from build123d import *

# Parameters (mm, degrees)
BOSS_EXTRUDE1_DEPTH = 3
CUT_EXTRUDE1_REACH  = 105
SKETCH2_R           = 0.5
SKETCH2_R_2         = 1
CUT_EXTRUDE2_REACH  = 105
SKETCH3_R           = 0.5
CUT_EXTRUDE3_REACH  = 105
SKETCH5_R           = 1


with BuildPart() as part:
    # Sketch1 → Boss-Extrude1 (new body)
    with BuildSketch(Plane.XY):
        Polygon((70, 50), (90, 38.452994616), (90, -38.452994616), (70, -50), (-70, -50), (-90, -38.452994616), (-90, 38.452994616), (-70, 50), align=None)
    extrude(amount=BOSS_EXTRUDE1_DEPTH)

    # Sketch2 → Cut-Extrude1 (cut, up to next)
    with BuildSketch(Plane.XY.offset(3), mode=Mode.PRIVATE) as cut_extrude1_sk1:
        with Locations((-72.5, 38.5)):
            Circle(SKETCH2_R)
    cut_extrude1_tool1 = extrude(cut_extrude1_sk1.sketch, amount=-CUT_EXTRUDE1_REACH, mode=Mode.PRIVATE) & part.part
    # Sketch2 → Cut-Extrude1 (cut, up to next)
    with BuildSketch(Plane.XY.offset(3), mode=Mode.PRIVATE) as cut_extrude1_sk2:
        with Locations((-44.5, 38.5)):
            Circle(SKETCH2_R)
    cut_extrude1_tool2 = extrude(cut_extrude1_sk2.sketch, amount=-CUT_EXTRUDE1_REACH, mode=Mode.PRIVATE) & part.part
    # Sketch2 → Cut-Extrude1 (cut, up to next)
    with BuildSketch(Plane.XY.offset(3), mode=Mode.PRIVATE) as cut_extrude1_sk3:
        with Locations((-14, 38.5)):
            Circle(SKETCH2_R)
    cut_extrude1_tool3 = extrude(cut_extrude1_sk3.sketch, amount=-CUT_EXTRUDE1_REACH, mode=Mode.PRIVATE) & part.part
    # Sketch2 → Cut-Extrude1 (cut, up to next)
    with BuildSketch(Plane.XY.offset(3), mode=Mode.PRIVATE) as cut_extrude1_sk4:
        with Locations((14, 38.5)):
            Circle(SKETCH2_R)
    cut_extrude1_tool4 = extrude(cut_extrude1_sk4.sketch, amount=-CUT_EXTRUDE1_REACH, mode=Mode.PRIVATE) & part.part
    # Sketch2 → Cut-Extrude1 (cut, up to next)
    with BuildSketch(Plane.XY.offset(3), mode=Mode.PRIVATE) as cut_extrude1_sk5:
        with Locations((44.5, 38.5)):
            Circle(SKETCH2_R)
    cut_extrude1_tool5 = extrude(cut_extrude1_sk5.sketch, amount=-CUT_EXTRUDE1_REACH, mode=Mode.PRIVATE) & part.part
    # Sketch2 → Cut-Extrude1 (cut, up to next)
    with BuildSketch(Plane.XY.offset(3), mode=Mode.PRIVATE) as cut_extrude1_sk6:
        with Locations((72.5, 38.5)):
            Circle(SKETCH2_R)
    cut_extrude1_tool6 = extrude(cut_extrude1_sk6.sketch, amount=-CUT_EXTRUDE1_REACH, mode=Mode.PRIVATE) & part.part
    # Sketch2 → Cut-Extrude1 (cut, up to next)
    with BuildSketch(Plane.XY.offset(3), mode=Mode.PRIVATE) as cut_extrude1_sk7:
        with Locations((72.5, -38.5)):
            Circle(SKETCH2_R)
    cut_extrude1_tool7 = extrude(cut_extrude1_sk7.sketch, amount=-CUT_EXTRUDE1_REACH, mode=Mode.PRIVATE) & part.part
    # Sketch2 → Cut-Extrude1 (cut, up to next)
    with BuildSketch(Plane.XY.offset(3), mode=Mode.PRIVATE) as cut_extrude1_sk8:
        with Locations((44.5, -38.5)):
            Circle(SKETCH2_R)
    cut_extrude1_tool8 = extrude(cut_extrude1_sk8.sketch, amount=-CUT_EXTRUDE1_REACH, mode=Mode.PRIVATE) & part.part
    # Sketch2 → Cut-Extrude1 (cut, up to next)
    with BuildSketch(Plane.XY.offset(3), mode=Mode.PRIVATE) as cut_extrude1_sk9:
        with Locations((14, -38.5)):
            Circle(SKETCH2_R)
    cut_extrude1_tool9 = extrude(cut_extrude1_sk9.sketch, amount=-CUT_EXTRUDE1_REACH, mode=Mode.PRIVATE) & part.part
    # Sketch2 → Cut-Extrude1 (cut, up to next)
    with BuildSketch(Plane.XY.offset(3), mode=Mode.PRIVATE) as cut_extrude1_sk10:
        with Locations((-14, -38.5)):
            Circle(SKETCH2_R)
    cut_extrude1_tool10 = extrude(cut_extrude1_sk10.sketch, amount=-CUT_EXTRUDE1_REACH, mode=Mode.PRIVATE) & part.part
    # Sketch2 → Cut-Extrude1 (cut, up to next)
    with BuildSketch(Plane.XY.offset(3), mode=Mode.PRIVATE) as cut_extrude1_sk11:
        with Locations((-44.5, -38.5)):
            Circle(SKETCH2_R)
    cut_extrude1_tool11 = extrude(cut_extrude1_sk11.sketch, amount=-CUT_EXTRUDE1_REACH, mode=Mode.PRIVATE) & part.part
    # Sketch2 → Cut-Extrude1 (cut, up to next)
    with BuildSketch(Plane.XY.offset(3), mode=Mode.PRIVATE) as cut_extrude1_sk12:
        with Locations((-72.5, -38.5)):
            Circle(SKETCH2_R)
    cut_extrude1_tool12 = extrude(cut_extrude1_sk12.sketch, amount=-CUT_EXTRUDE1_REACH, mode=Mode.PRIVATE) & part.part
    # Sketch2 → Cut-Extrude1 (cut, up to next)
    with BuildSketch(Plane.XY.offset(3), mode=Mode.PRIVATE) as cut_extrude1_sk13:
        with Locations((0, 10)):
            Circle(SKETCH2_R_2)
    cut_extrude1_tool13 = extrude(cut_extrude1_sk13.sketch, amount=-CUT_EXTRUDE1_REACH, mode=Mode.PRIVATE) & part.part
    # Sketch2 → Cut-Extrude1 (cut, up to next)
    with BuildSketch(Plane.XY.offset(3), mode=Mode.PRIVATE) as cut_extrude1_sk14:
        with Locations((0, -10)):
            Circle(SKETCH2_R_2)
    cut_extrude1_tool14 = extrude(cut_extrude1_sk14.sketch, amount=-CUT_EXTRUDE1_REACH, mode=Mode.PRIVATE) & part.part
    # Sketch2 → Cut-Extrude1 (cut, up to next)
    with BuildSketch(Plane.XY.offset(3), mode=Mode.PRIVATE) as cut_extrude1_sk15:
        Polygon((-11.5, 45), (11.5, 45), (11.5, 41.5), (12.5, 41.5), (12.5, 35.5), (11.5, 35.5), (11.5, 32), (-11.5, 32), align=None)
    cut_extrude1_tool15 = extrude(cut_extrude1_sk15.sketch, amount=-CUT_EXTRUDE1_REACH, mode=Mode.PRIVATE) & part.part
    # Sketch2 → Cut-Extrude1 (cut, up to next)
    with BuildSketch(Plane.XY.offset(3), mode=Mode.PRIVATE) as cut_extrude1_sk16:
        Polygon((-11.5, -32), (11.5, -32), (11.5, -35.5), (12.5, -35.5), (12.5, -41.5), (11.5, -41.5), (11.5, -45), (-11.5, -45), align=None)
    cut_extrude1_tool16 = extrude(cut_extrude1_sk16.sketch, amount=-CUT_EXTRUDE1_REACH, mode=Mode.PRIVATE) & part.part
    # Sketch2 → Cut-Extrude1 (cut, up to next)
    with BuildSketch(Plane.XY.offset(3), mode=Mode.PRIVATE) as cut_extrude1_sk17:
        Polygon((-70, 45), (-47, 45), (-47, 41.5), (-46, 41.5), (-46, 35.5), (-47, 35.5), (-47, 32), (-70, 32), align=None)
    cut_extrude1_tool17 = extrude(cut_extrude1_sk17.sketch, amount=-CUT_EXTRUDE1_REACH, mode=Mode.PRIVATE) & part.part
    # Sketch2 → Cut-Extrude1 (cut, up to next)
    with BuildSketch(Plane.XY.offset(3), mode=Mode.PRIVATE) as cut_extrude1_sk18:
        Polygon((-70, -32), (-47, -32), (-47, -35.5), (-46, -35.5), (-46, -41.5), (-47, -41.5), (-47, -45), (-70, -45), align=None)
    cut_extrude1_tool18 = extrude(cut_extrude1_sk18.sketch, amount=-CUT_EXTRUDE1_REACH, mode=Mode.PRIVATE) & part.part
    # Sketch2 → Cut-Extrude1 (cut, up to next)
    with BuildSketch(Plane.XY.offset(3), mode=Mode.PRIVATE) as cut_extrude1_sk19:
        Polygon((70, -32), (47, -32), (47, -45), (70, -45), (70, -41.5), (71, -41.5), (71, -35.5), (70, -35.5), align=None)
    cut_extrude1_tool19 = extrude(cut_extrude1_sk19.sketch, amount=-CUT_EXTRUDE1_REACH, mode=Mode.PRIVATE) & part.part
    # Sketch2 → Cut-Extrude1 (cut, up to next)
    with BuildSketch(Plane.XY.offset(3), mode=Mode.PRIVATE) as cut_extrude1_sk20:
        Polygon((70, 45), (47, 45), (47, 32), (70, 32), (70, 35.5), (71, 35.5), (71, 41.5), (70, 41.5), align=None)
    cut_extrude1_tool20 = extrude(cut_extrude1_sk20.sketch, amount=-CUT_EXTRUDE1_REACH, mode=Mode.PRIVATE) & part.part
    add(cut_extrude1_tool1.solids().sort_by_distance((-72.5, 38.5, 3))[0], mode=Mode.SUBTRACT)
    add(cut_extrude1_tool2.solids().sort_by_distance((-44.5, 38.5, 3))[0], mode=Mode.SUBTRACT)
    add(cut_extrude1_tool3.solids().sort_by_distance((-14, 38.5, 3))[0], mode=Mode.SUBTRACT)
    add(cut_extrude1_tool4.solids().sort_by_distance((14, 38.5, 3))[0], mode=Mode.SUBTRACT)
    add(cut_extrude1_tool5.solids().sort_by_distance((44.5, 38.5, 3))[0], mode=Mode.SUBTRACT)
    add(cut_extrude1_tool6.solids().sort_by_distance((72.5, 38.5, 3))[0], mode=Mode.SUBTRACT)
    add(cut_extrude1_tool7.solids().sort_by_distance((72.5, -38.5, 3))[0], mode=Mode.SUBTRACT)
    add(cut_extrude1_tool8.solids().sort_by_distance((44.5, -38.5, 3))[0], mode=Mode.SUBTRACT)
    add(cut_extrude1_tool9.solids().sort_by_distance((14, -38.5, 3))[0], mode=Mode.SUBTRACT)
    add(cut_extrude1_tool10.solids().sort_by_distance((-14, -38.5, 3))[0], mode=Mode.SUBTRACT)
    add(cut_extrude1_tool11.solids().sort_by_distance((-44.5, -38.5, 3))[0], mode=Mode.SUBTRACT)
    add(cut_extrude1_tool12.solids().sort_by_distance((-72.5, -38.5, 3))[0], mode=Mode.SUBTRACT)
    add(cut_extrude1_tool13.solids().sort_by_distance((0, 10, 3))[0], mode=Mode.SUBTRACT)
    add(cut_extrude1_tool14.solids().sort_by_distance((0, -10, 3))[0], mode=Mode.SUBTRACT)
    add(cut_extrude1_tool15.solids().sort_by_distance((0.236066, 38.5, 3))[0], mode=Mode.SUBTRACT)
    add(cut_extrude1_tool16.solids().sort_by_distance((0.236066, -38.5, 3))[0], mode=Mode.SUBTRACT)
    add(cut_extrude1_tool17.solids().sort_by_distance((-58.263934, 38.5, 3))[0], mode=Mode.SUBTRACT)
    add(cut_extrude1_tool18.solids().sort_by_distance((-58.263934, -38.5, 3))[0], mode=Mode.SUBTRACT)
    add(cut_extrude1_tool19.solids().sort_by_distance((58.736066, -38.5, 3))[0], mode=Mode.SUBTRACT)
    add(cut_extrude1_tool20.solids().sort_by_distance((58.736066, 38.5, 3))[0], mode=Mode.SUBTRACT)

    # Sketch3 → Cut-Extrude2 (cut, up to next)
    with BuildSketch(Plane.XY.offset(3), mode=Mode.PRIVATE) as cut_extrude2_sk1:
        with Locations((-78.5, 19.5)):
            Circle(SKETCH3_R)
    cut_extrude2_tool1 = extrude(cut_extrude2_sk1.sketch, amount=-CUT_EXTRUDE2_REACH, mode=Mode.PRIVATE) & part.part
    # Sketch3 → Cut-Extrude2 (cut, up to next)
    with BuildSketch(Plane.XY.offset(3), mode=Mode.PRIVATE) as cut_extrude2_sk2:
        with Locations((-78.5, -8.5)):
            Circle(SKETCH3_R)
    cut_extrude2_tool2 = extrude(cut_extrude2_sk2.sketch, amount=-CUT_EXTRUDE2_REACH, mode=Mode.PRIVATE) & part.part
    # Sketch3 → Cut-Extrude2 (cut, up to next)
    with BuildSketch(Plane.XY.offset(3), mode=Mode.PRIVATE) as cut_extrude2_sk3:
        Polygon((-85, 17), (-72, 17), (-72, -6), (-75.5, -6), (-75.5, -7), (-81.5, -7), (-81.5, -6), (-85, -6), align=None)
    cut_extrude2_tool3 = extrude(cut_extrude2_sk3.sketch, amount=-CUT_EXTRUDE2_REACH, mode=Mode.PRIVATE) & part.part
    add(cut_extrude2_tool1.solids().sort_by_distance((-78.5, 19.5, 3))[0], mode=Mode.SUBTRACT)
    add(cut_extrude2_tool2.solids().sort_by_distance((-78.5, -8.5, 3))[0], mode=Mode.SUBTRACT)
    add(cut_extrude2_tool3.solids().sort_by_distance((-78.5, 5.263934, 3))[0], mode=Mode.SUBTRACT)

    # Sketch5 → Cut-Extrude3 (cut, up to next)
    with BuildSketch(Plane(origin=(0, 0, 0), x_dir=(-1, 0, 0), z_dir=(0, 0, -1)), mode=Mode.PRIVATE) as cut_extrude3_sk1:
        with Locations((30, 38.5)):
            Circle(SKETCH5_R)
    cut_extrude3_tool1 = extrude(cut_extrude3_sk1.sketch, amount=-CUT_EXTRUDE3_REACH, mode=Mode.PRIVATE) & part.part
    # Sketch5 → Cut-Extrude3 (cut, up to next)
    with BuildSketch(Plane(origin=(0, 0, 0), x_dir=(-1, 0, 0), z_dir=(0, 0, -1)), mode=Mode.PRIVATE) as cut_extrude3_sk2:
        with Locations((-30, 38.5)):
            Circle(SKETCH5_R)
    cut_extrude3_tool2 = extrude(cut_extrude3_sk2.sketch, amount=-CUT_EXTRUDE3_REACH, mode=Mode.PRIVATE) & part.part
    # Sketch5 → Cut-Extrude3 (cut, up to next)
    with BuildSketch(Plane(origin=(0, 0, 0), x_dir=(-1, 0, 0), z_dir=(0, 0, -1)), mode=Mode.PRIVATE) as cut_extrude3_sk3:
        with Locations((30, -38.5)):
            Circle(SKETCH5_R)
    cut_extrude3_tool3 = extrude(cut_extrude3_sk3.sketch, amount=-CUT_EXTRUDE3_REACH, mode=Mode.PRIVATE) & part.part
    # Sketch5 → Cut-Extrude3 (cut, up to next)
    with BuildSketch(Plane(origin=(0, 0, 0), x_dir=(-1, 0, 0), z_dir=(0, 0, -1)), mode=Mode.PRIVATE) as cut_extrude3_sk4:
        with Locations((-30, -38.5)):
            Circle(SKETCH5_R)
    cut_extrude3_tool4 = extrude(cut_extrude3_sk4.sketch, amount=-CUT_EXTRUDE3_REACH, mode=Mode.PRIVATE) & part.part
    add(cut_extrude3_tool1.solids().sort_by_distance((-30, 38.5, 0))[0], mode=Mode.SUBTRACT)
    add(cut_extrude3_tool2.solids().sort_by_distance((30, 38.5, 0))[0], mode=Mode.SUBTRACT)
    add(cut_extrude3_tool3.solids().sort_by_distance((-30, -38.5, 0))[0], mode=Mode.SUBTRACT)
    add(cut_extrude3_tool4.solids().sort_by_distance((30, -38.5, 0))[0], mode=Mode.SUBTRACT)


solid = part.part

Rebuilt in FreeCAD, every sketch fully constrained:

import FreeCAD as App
import Part
import Sketcher

V = App.Vector
Q = App.Units.Quantity

doc = App.newDocument("Part")
params = doc.addObject("Spreadsheet::Sheet", "Params")
for row, (alias, value) in enumerate([
    ("sketch1_width", "140 mm"),
    ("pad1_length", "3 mm"),
    ("sketch2_diameter", "1 mm"),
    ("sketch3_diameter", "1 mm"),
    ("sketch4_diameter", "1 mm"),
    ("sketch5_diameter", "1 mm"),
    ("sketch6_diameter", "1 mm"),
    ("sketch7_diameter", "1 mm"),
    ("sketch8_diameter", "1 mm"),
    ("sketch9_diameter", "1 mm"),
    ("sketch10_diameter", "1 mm"),
    ("sketch11_diameter", "1 mm"),
    ("sketch12_diameter", "1 mm"),
    ("sketch13_diameter", "1 mm"),
    ("sketch14_diameter", "2 mm"),
    ("sketch15_diameter", "2 mm"),
    ("sketch16_width", "23 mm"),
    ("sketch16_width2", "1 mm"),
    ("sketch16_height", "13 mm"),
    ("sketch16_height2", "6 mm"),
    ("sketch17_width", "23 mm"),
    ("sketch17_width2", "1 mm"),
    ("sketch17_height", "13 mm"),
    ("sketch17_height2", "6 mm"),
    ("sketch18_width", "23 mm"),
    ("sketch18_width2", "1 mm"),
    ("sketch18_height", "13 mm"),
    ("sketch18_height2", "6 mm"),
    ("sketch19_width", "23 mm"),
    ("sketch19_width2", "1 mm"),
    ("sketch19_height", "13 mm"),
    ("sketch19_height2", "6 mm"),
    ("sketch20_width", "23 mm"),
    ("sketch20_width2", "1 mm"),
    ("sketch20_height", "13 mm"),
    ("sketch20_height2", "6 mm"),
    ("sketch21_width", "23 mm"),
    ("sketch21_width2", "1 mm"),
    ("sketch21_height", "13 mm"),
    ("sketch21_height2", "6 mm"),
    ("sketch22_diameter", "1 mm"),
    ("sketch23_diameter", "1 mm"),
    ("sketch24_width", "13 mm"),
    ("sketch24_width2", "6 mm"),
    ("sketch24_height", "23 mm"),
    ("sketch24_height2", "1 mm"),
    ("sketch25_diameter", "2 mm"),
    ("sketch26_diameter", "2 mm"),
    ("sketch27_diameter", "2 mm"),
    ("sketch28_diameter", "2 mm"),
], start=1):
    params.set(f"A{row}", alias)
    params.set(f"B{row}", "=" + value)
    params.setAlias(f"B{row}", alias)

body = doc.addObject("PartDesign::Body", "Body")

# Sketch on XY plane
sketch1 = body.newObject("Sketcher::SketchObject", "Sketch")
sketch1.AttachmentSupport = (doc.getObject("XY_Plane"), [""])
sketch1.MapMode = "FlatFace"
sketch1.addGeometry([
    Part.LineSegment(V(90, 38, 0), V(70, 50, 0)),  # 0
    Part.LineSegment(V(70, 50, 0), V(-70, 50, 0)),  # 1
    Part.LineSegment(V(-70, 50, 0), V(-90, 38, 0)),  # 2
    Part.LineSegment(V(-90, 38, 0), V(-90, -38, 0)),  # 3
    Part.LineSegment(V(-90, -38, 0), V(-70, -50, 0)),  # 4
    Part.LineSegment(V(-70, -50, 0), V(70, -50, 0)),  # 5
    Part.LineSegment(V(70, -50, 0), V(90, -38, 0)),  # 6
    Part.LineSegment(V(90, -38, 0), V(90, 38, 0)),  # 7
], False)
sketch1.addConstraint([
    Sketcher.Constraint("Coincident", 0, 2, 1, 1),
    Sketcher.Constraint("Coincident", 1, 2, 2, 1),
    Sketcher.Constraint("Coincident", 2, 2, 3, 1),
    Sketcher.Constraint("Coincident", 3, 2, 4, 1),
    Sketcher.Constraint("Coincident", 4, 2, 5, 1),
    Sketcher.Constraint("Coincident", 5, 2, 6, 1),
    Sketcher.Constraint("Coincident", 6, 2, 7, 1),
    Sketcher.Constraint("Coincident", 7, 2, 0, 1),
    Sketcher.Constraint("Horizontal", 1),
    Sketcher.Constraint("Vertical", 3),
    Sketcher.Constraint("Horizontal", 5),
    Sketcher.Constraint("Vertical", 7),
    Sketcher.Constraint("Symmetric", 0, 2, 4, 2, -1, 1),
    Sketcher.Constraint("Symmetric", 2, 2, 6, 2, -1, 1),
    Sketcher.Constraint("Parallel", 0, 4),
    Sketcher.Constraint("Parallel", 2, 6),
    Sketcher.Constraint("Horizontal", 3, 2, 6, 2),
    Sketcher.Constraint("Vertical", 1, 2, 4, 2),
    Sketcher.Constraint("DistanceX", 1, 2, 1, 1, Q("140 mm")),
    Sketcher.Constraint("Angle", 0, Q("150 deg")),
    Sketcher.Constraint("DistanceY", -1, 1, 0, 2, Q("50 mm")),
    Sketcher.Constraint("DistanceX", 2, 2, -1, 1, Q("90 mm")),
])
sketch1.setExpression("Constraints[18]", "Params.sketch1_width")
pad1 = body.newObject("PartDesign::Pad", "Pad")
pad1.Profile = sketch1
pad1.setExpression("Length", "Params.pad1_length")

# Sketch on XY plane
sketch2 = body.newObject("Sketcher::SketchObject", "Sketch001")
sketch2.AttachmentSupport = (doc.getObject("XY_Plane"), [""])
sketch2.MapMode = "FlatFace"
sketch2.AttachmentOffset = App.Placement(V(0, 0, 3), App.Rotation())
sketch2.addGeometry(Part.Circle(V(-72.5, 38.5, 0), V(0, 0, 1), 0.5), False)
sketch2.addConstraint([
    Sketcher.Constraint("Diameter", 0, Q("1 mm")),
    Sketcher.Constraint("DistanceX", 0, 3, -1, 1, Q("72.5 mm")),
    Sketcher.Constraint("DistanceY", -1, 1, 0, 3, Q("38.5 mm")),
])
sketch2.setExpression("Constraints[0]", "Params.sketch2_diameter")
pocket1 = body.newObject("PartDesign::Pocket", "Pocket")
pocket1.Profile = sketch2
pocket1.Type = "UpToFirst"

# Sketch on XY plane
sketch3 = body.newObject("Sketcher::SketchObject", "Sketch002")
sketch3.AttachmentSupport = (doc.getObject("XY_Plane"), [""])
sketch3.MapMode = "FlatFace"
sketch3.AttachmentOffset = App.Placement(V(0, 0, 3), App.Rotation())
sketch3.addGeometry(Part.Circle(V(-44.5, 38.5, 0), V(0, 0, 1), 0.5), False)
sketch3.addConstraint([
    Sketcher.Constraint("Diameter", 0, Q("1 mm")),
    Sketcher.Constraint("DistanceX", 0, 3, -1, 1, Q("44.5 mm")),
    Sketcher.Constraint("DistanceY", -1, 1, 0, 3, Q("38.5 mm")),
])
sketch3.setExpression("Constraints[0]", "Params.sketch3_diameter")
pocket2 = body.newObject("PartDesign::Pocket", "Pocket001")
pocket2.Profile = sketch3
pocket2.Type = "UpToFirst"

# Sketch on XY plane
sketch4 = body.newObject("Sketcher::SketchObject", "Sketch003")
sketch4.AttachmentSupport = (doc.getObject("XY_Plane"), [""])
sketch4.MapMode = "FlatFace"
sketch4.AttachmentOffset = App.Placement(V(0, 0, 3), App.Rotation())
sketch4.addGeometry(Part.Circle(V(-14, 38.5, 0), V(0, 0, 1), 0.5), False)
sketch4.addConstraint([
    Sketcher.Constraint("Diameter", 0, Q("1 mm")),
    Sketcher.Constraint("DistanceX", 0, 3, -1, 1, Q("14 mm")),
    Sketcher.Constraint("DistanceY", -1, 1, 0, 3, Q("38.5 mm")),
])
sketch4.setExpression("Constraints[0]", "Params.sketch4_diameter")
pocket3 = body.newObject("PartDesign::Pocket", "Pocket002")
pocket3.Profile = sketch4
pocket3.Type = "UpToFirst"

# Sketch on XY plane
sketch5 = body.newObject("Sketcher::SketchObject", "Sketch004")
sketch5.AttachmentSupport = (doc.getObject("XY_Plane"), [""])
sketch5.MapMode = "FlatFace"
sketch5.AttachmentOffset = App.Placement(V(0, 0, 3), App.Rotation())
sketch5.addGeometry(Part.Circle(V(14, 38.5, 0), V(0, 0, 1), 0.5), False)
sketch5.addConstraint([
    Sketcher.Constraint("Diameter", 0, Q("1 mm")),
    Sketcher.Constraint("DistanceX", -1, 1, 0, 3, Q("14 mm")),
    Sketcher.Constraint("DistanceY", -1, 1, 0, 3, Q("38.5 mm")),
])
sketch5.setExpression("Constraints[0]", "Params.sketch5_diameter")
pocket4 = body.newObject("PartDesign::Pocket", "Pocket003")
pocket4.Profile = sketch5
pocket4.Type = "UpToFirst"

# Sketch on XY plane
sketch6 = body.newObject("Sketcher::SketchObject", "Sketch005")
sketch6.AttachmentSupport = (doc.getObject("XY_Plane"), [""])
sketch6.MapMode = "FlatFace"
sketch6.AttachmentOffset = App.Placement(V(0, 0, 3), App.Rotation())
sketch6.addGeometry(Part.Circle(V(44.5, 38.5, 0), V(0, 0, 1), 0.5), False)
sketch6.addConstraint([
    Sketcher.Constraint("Diameter", 0, Q("1 mm")),
    Sketcher.Constraint("DistanceX", -1, 1, 0, 3, Q("44.5 mm")),
    Sketcher.Constraint("DistanceY", -1, 1, 0, 3, Q("38.5 mm")),
])
sketch6.setExpression("Constraints[0]", "Params.sketch6_diameter")
pocket5 = body.newObject("PartDesign::Pocket", "Pocket004")
pocket5.Profile = sketch6
pocket5.Type = "UpToFirst"

# Sketch on XY plane
sketch7 = body.newObject("Sketcher::SketchObject", "Sketch006")
sketch7.AttachmentSupport = (doc.getObject("XY_Plane"), [""])
sketch7.MapMode = "FlatFace"
sketch7.AttachmentOffset = App.Placement(V(0, 0, 3), App.Rotation())
sketch7.addGeometry(Part.Circle(V(72.5, 38.5, 0), V(0, 0, 1), 0.5), False)
sketch7.addConstraint([
    Sketcher.Constraint("Diameter", 0, Q("1 mm")),
    Sketcher.Constraint("DistanceX", -1, 1, 0, 3, Q("72.5 mm")),
    Sketcher.Constraint("DistanceY", -1, 1, 0, 3, Q("38.5 mm")),
])
sketch7.setExpression("Constraints[0]", "Params.sketch7_diameter")
pocket6 = body.newObject("PartDesign::Pocket", "Pocket005")
pocket6.Profile = sketch7
pocket6.Type = "UpToFirst"

# Sketch on XY plane
sketch8 = body.newObject("Sketcher::SketchObject", "Sketch007")
sketch8.AttachmentSupport = (doc.getObject("XY_Plane"), [""])
sketch8.MapMode = "FlatFace"
sketch8.AttachmentOffset = App.Placement(V(0, 0, 3), App.Rotation())
sketch8.addGeometry(Part.Circle(V(72.5, -38.5, 0), V(0, 0, 1), 0.5), False)
sketch8.addConstraint([
    Sketcher.Constraint("Diameter", 0, Q("1 mm")),
    Sketcher.Constraint("DistanceX", -1, 1, 0, 3, Q("72.5 mm")),
    Sketcher.Constraint("DistanceY", 0, 3, -1, 1, Q("38.5 mm")),
])
sketch8.setExpression("Constraints[0]", "Params.sketch8_diameter")
pocket7 = body.newObject("PartDesign::Pocket", "Pocket006")
pocket7.Profile = sketch8
pocket7.Type = "UpToFirst"

# Sketch on XY plane
sketch9 = body.newObject("Sketcher::SketchObject", "Sketch008")
sketch9.AttachmentSupport = (doc.getObject("XY_Plane"), [""])
sketch9.MapMode = "FlatFace"
sketch9.AttachmentOffset = App.Placement(V(0, 0, 3), App.Rotation())
sketch9.addGeometry(Part.Circle(V(44.5, -38.5, 0), V(0, 0, 1), 0.5), False)
sketch9.addConstraint([
    Sketcher.Constraint("Diameter", 0, Q("1 mm")),
    Sketcher.Constraint("DistanceX", -1, 1, 0, 3, Q("44.5 mm")),
    Sketcher.Constraint("DistanceY", 0, 3, -1, 1, Q("38.5 mm")),
])
sketch9.setExpression("Constraints[0]", "Params.sketch9_diameter")
pocket8 = body.newObject("PartDesign::Pocket", "Pocket007")
pocket8.Profile = sketch9
pocket8.Type = "UpToFirst"

# Sketch on XY plane
sketch10 = body.newObject("Sketcher::SketchObject", "Sketch009")
sketch10.AttachmentSupport = (doc.getObject("XY_Plane"), [""])
sketch10.MapMode = "FlatFace"
sketch10.AttachmentOffset = App.Placement(V(0, 0, 3), App.Rotation())
sketch10.addGeometry(Part.Circle(V(14, -38.5, 0), V(0, 0, 1), 0.5), False)
sketch10.addConstraint([
    Sketcher.Constraint("Diameter", 0, Q("1 mm")),
    Sketcher.Constraint("DistanceX", -1, 1, 0, 3, Q("14 mm")),
    Sketcher.Constraint("DistanceY", 0, 3, -1, 1, Q("38.5 mm")),
])
sketch10.setExpression("Constraints[0]", "Params.sketch10_diameter")
pocket9 = body.newObject("PartDesign::Pocket", "Pocket008")
pocket9.Profile = sketch10
pocket9.Type = "UpToFirst"

# Sketch on XY plane
sketch11 = body.newObject("Sketcher::SketchObject", "Sketch010")
sketch11.AttachmentSupport = (doc.getObject("XY_Plane"), [""])
sketch11.MapMode = "FlatFace"
sketch11.AttachmentOffset = App.Placement(V(0, 0, 3), App.Rotation())
sketch11.addGeometry(Part.Circle(V(-14, -38.5, 0), V(0, 0, 1), 0.5), False)
sketch11.addConstraint([
    Sketcher.Constraint("Diameter", 0, Q("1 mm")),
    Sketcher.Constraint("DistanceX", 0, 3, -1, 1, Q("14 mm")),
    Sketcher.Constraint("DistanceY", 0, 3, -1, 1, Q("38.5 mm")),
])
sketch11.setExpression("Constraints[0]", "Params.sketch11_diameter")
pocket10 = body.newObject("PartDesign::Pocket", "Pocket009")
pocket10.Profile = sketch11
pocket10.Type = "UpToFirst"

# Sketch on XY plane
sketch12 = body.newObject("Sketcher::SketchObject", "Sketch011")
sketch12.AttachmentSupport = (doc.getObject("XY_Plane"), [""])
sketch12.MapMode = "FlatFace"
sketch12.AttachmentOffset = App.Placement(V(0, 0, 3), App.Rotation())
sketch12.addGeometry(Part.Circle(V(-44.5, -38.5, 0), V(0, 0, 1), 0.5), False)
sketch12.addConstraint([
    Sketcher.Constraint("Diameter", 0, Q("1 mm")),
    Sketcher.Constraint("DistanceX", 0, 3, -1, 1, Q("44.5 mm")),
    Sketcher.Constraint("DistanceY", 0, 3, -1, 1, Q("38.5 mm")),
])
sketch12.setExpression("Constraints[0]", "Params.sketch12_diameter")
pocket11 = body.newObject("PartDesign::Pocket", "Pocket010")
pocket11.Profile = sketch12
pocket11.Type = "UpToFirst"

# Sketch on XY plane
sketch13 = body.newObject("Sketcher::SketchObject", "Sketch012")
sketch13.AttachmentSupport = (doc.getObject("XY_Plane"), [""])
sketch13.MapMode = "FlatFace"
sketch13.AttachmentOffset = App.Placement(V(0, 0, 3), App.Rotation())
sketch13.addGeometry(Part.Circle(V(-72.5, -38.5, 0), V(0, 0, 1), 0.5), False)
sketch13.addConstraint([
    Sketcher.Constraint("Diameter", 0, Q("1 mm")),
    Sketcher.Constraint("DistanceX", 0, 3, -1, 1, Q("72.5 mm")),
    Sketcher.Constraint("DistanceY", 0, 3, -1, 1, Q("38.5 mm")),
])
sketch13.setExpression("Constraints[0]", "Params.sketch13_diameter")
pocket12 = body.newObject("PartDesign::Pocket", "Pocket011")
pocket12.Profile = sketch13
pocket12.Type = "UpToFirst"

# Sketch on XY plane
sketch14 = body.newObject("Sketcher::SketchObject", "Sketch013")
sketch14.AttachmentSupport = (doc.getObject("XY_Plane"), [""])
sketch14.MapMode = "FlatFace"
sketch14.AttachmentOffset = App.Placement(V(0, 0, 3), App.Rotation())
sketch14.addGeometry(Part.Circle(V(0, 10, 0), V(0, 0, 1), 1), False)
sketch14.addConstraint([
    Sketcher.Constraint("PointOnObject", 0, 3, -2),
    Sketcher.Constraint("Diameter", 0, Q("2 mm")),
    Sketcher.Constraint("DistanceY", -1, 1, 0, 3, Q("10 mm")),
])
sketch14.setExpression("Constraints[1]", "Params.sketch14_diameter")
pocket13 = body.newObject("PartDesign::Pocket", "Pocket012")
pocket13.Profile = sketch14
pocket13.Type = "UpToFirst"

# Sketch on XY plane
sketch15 = body.newObject("Sketcher::SketchObject", "Sketch014")
sketch15.AttachmentSupport = (doc.getObject("XY_Plane"), [""])
sketch15.MapMode = "FlatFace"
sketch15.AttachmentOffset = App.Placement(V(0, 0, 3), App.Rotation())
sketch15.addGeometry(Part.Circle(V(0, -10, 0), V(0, 0, 1), 1), False)
sketch15.addConstraint([
    Sketcher.Constraint("PointOnObject", 0, 3, -2),
    Sketcher.Constraint("Diameter", 0, Q("2 mm")),
    Sketcher.Constraint("DistanceY", 0, 3, -1, 1, Q("10 mm")),
])
sketch15.setExpression("Constraints[1]", "Params.sketch15_diameter")
pocket14 = body.newObject("PartDesign::Pocket", "Pocket013")
pocket14.Profile = sketch15
pocket14.Type = "UpToFirst"

# Sketch on XY plane
sketch16 = body.newObject("Sketcher::SketchObject", "Sketch015")
sketch16.AttachmentSupport = (doc.getObject("XY_Plane"), [""])
sketch16.MapMode = "FlatFace"
sketch16.AttachmentOffset = App.Placement(V(0, 0, 3), App.Rotation())
sketch16.addGeometry([
    Part.LineSegment(V(11.5, 45, 0), V(-11.5, 45, 0)),  # 0
    Part.LineSegment(V(-11.5, 45, 0), V(-11.5, 32, 0)),  # 1
    Part.LineSegment(V(-11.5, 32, 0), V(11.5, 32, 0)),  # 2
    Part.LineSegment(V(11.5, 32, 0), V(11.5, 35.5, 0)),  # 3
    Part.LineSegment(V(11.5, 35.5, 0), V(12.5, 35.5, 0)),  # 4
    Part.LineSegment(V(12.5, 35.5, 0), V(12.5, 41.5, 0)),  # 5
    Part.LineSegment(V(12.5, 41.5, 0), V(11.5, 41.5, 0)),  # 6
    Part.LineSegment(V(11.5, 41.5, 0), V(11.5, 45, 0)),  # 7
], False)
sketch16.addConstraint([
    Sketcher.Constraint("Coincident", 0, 2, 1, 1),
    Sketcher.Constraint("Coincident", 1, 2, 2, 1),
    Sketcher.Constraint("Coincident", 2, 2, 3, 1),
    Sketcher.Constraint("Coincident", 3, 2, 4, 1),
    Sketcher.Constraint("Coincident", 4, 2, 5, 1),
    Sketcher.Constraint("Coincident", 5, 2, 6, 1),
    Sketcher.Constraint("Coincident", 6, 2, 7, 1),
    Sketcher.Constraint("Coincident", 7, 2, 0, 1),
    Sketcher.Constraint("Horizontal", 0),
    Sketcher.Constraint("Vertical", 1),
    Sketcher.Constraint("Horizontal", 2),
    Sketcher.Constraint("Vertical", 3),
    Sketcher.Constraint("Horizontal", 4),
    Sketcher.Constraint("Vertical", 5),
    Sketcher.Constraint("Horizontal", 6),
    Sketcher.Constraint("Vertical", 7),
    Sketcher.Constraint("Vertical", 3, 2, 6, 2),
    Sketcher.Constraint("Equal", 3, 7),
    Sketcher.Constraint("DistanceX", 0, 2, 0, 1, Q("23 mm")),
    Sketcher.Constraint("DistanceX", 4, 1, 4, 2, Q("1 mm")),
    Sketcher.Constraint("DistanceY", 1, 2, 1, 1, Q("13 mm")),
    Sketcher.Constraint("DistanceY", 5, 1, 5, 2, Q("6 mm")),
    Sketcher.Constraint("DistanceY", -1, 1, 0, 2, Q("45 mm")),
    Sketcher.Constraint("DistanceX", 0, 2, -1, 1, Q("11.5 mm")),
])
sketch16.setExpression("Constraints[18]", "Params.sketch16_width")
sketch16.setExpression("Constraints[19]", "Params.sketch16_width2")
sketch16.setExpression("Constraints[20]", "Params.sketch16_height")
sketch16.setExpression("Constraints[21]", "Params.sketch16_height2")
pocket15 = body.newObject("PartDesign::Pocket", "Pocket014")
pocket15.Profile = sketch16
pocket15.Type = "UpToFirst"

# Sketch on XY plane
sketch17 = body.newObject("Sketcher::SketchObject", "Sketch016")
sketch17.AttachmentSupport = (doc.getObject("XY_Plane"), [""])
sketch17.MapMode = "FlatFace"
sketch17.AttachmentOffset = App.Placement(V(0, 0, 3), App.Rotation())
sketch17.addGeometry([
    Part.LineSegment(V(11.5, -32, 0), V(-11.5, -32, 0)),  # 0
    Part.LineSegment(V(-11.5, -32, 0), V(-11.5, -45, 0)),  # 1
    Part.LineSegment(V(-11.5, -45, 0), V(11.5, -45, 0)),  # 2
    Part.LineSegment(V(11.5, -45, 0), V(11.5, -41.5, 0)),  # 3
    Part.LineSegment(V(11.5, -41.5, 0), V(12.5, -41.5, 0)),  # 4
    Part.LineSegment(V(12.5, -41.5, 0), V(12.5, -35.5, 0)),  # 5
    Part.LineSegment(V(12.5, -35.5, 0), V(11.5, -35.5, 0)),  # 6
    Part.LineSegment(V(11.5, -35.5, 0), V(11.5, -32, 0)),  # 7
], False)
sketch17.addConstraint([
    Sketcher.Constraint("Coincident", 0, 2, 1, 1),
    Sketcher.Constraint("Coincident", 1, 2, 2, 1),
    Sketcher.Constraint("Coincident", 2, 2, 3, 1),
    Sketcher.Constraint("Coincident", 3, 2, 4, 1),
    Sketcher.Constraint("Coincident", 4, 2, 5, 1),
    Sketcher.Constraint("Coincident", 5, 2, 6, 1),
    Sketcher.Constraint("Coincident", 6, 2, 7, 1),
    Sketcher.Constraint("Coincident", 7, 2, 0, 1),
    Sketcher.Constraint("Horizontal", 0),
    Sketcher.Constraint("Vertical", 1),
    Sketcher.Constraint("Horizontal", 2),
    Sketcher.Constraint("Vertical", 3),
    Sketcher.Constraint("Horizontal", 4),
    Sketcher.Constraint("Vertical", 5),
    Sketcher.Constraint("Horizontal", 6),
    Sketcher.Constraint("Vertical", 7),
    Sketcher.Constraint("Vertical", 3, 2, 6, 2),
    Sketcher.Constraint("Equal", 3, 7),
    Sketcher.Constraint("DistanceX", 0, 2, 0, 1, Q("23 mm")),
    Sketcher.Constraint("DistanceX", 4, 1, 4, 2, Q("1 mm")),
    Sketcher.Constraint("DistanceY", 1, 2, 1, 1, Q("13 mm")),
    Sketcher.Constraint("DistanceY", 5, 1, 5, 2, Q("6 mm")),
    Sketcher.Constraint("DistanceY", 0, 2, -1, 1, Q("32 mm")),
    Sketcher.Constraint("DistanceX", 0, 2, -1, 1, Q("11.5 mm")),
])
sketch17.setExpression("Constraints[18]", "Params.sketch17_width")
sketch17.setExpression("Constraints[19]", "Params.sketch17_width2")
sketch17.setExpression("Constraints[20]", "Params.sketch17_height")
sketch17.setExpression("Constraints[21]", "Params.sketch17_height2")
pocket16 = body.newObject("PartDesign::Pocket", "Pocket015")
pocket16.Profile = sketch17
pocket16.Type = "UpToFirst"

# Sketch on XY plane
sketch18 = body.newObject("Sketcher::SketchObject", "Sketch017")
sketch18.AttachmentSupport = (doc.getObject("XY_Plane"), [""])
sketch18.MapMode = "FlatFace"
sketch18.AttachmentOffset = App.Placement(V(0, 0, 3), App.Rotation())
sketch18.addGeometry([
    Part.LineSegment(V(-47, 45, 0), V(-70, 45, 0)),  # 0
    Part.LineSegment(V(-70, 45, 0), V(-70, 32, 0)),  # 1
    Part.LineSegment(V(-70, 32, 0), V(-47, 32, 0)),  # 2
    Part.LineSegment(V(-47, 32, 0), V(-47, 35.5, 0)),  # 3
    Part.LineSegment(V(-47, 35.5, 0), V(-46, 35.5, 0)),  # 4
    Part.LineSegment(V(-46, 35.5, 0), V(-46, 41.5, 0)),  # 5
    Part.LineSegment(V(-46, 41.5, 0), V(-47, 41.5, 0)),  # 6
    Part.LineSegment(V(-47, 41.5, 0), V(-47, 45, 0)),  # 7
], False)
sketch18.addConstraint([
    Sketcher.Constraint("Coincident", 0, 2, 1, 1),
    Sketcher.Constraint("Coincident", 1, 2, 2, 1),
    Sketcher.Constraint("Coincident", 2, 2, 3, 1),
    Sketcher.Constraint("Coincident", 3, 2, 4, 1),
    Sketcher.Constraint("Coincident", 4, 2, 5, 1),
    Sketcher.Constraint("Coincident", 5, 2, 6, 1),
    Sketcher.Constraint("Coincident", 6, 2, 7, 1),
    Sketcher.Constraint("Coincident", 7, 2, 0, 1),
    Sketcher.Constraint("Horizontal", 0),
    Sketcher.Constraint("Vertical", 1),
    Sketcher.Constraint("Horizontal", 2),
    Sketcher.Constraint("Vertical", 3),
    Sketcher.Constraint("Horizontal", 4),
    Sketcher.Constraint("Vertical", 5),
    Sketcher.Constraint("Horizontal", 6),
    Sketcher.Constraint("Vertical", 7),
    Sketcher.Constraint("Vertical", 3, 2, 6, 2),
    Sketcher.Constraint("Equal", 3, 7),
    Sketcher.Constraint("DistanceX", 0, 2, 0, 1, Q("23 mm")),
    Sketcher.Constraint("DistanceX", 4, 1, 4, 2, Q("1 mm")),
    Sketcher.Constraint("DistanceY", 1, 2, 1, 1, Q("13 mm")),
    Sketcher.Constraint("DistanceY", 5, 1, 5, 2, Q("6 mm")),
    Sketcher.Constraint("DistanceX", 0, 2, -1, 1, Q("70 mm")),
    Sketcher.Constraint("DistanceY", -1, 1, 0, 2, Q("45 mm")),
])
sketch18.setExpression("Constraints[18]", "Params.sketch18_width")
sketch18.setExpression("Constraints[19]", "Params.sketch18_width2")
sketch18.setExpression("Constraints[20]", "Params.sketch18_height")
sketch18.setExpression("Constraints[21]", "Params.sketch18_height2")
pocket17 = body.newObject("PartDesign::Pocket", "Pocket016")
pocket17.Profile = sketch18
pocket17.Type = "UpToFirst"

# Sketch on XY plane
sketch19 = body.newObject("Sketcher::SketchObject", "Sketch018")
sketch19.AttachmentSupport = (doc.getObject("XY_Plane"), [""])
sketch19.MapMode = "FlatFace"
sketch19.AttachmentOffset = App.Placement(V(0, 0, 3), App.Rotation())
sketch19.addGeometry([
    Part.LineSegment(V(-47, -32, 0), V(-70, -32, 0)),  # 0
    Part.LineSegment(V(-70, -32, 0), V(-70, -45, 0)),  # 1
    Part.LineSegment(V(-70, -45, 0), V(-47, -45, 0)),  # 2
    Part.LineSegment(V(-47, -45, 0), V(-47, -41.5, 0)),  # 3
    Part.LineSegment(V(-47, -41.5, 0), V(-46, -41.5, 0)),  # 4
    Part.LineSegment(V(-46, -41.5, 0), V(-46, -35.5, 0)),  # 5
    Part.LineSegment(V(-46, -35.5, 0), V(-47, -35.5, 0)),  # 6
    Part.LineSegment(V(-47, -35.5, 0), V(-47, -32, 0)),  # 7
], False)
sketch19.addConstraint([
    Sketcher.Constraint("Coincident", 0, 2, 1, 1),
    Sketcher.Constraint("Coincident", 1, 2, 2, 1),
    Sketcher.Constraint("Coincident", 2, 2, 3, 1),
    Sketcher.Constraint("Coincident", 3, 2, 4, 1),
    Sketcher.Constraint("Coincident", 4, 2, 5, 1),
    Sketcher.Constraint("Coincident", 5, 2, 6, 1),
    Sketcher.Constraint("Coincident", 6, 2, 7, 1),
    Sketcher.Constraint("Coincident", 7, 2, 0, 1),
    Sketcher.Constraint("Horizontal", 0),
    Sketcher.Constraint("Vertical", 1),
    Sketcher.Constraint("Horizontal", 2),
    Sketcher.Constraint("Vertical", 3),
    Sketcher.Constraint("Horizontal", 4),
    Sketcher.Constraint("Vertical", 5),
    Sketcher.Constraint("Horizontal", 6),
    Sketcher.Constraint("Vertical", 7),
    Sketcher.Constraint("Vertical", 3, 2, 6, 2),
    Sketcher.Constraint("Equal", 3, 7),
    Sketcher.Constraint("DistanceX", 0, 2, 0, 1, Q("23 mm")),
    Sketcher.Constraint("DistanceX", 4, 1, 4, 2, Q("1 mm")),
    Sketcher.Constraint("DistanceY", 1, 2, 1, 1, Q("13 mm")),
    Sketcher.Constraint("DistanceY", 5, 1, 5, 2, Q("6 mm")),
    Sketcher.Constraint("DistanceX", 0, 2, -1, 1, Q("70 mm")),
    Sketcher.Constraint("DistanceY", 0, 2, -1, 1, Q("32 mm")),
])
sketch19.setExpression("Constraints[18]", "Params.sketch19_width")
sketch19.setExpression("Constraints[19]", "Params.sketch19_width2")
sketch19.setExpression("Constraints[20]", "Params.sketch19_height")
sketch19.setExpression("Constraints[21]", "Params.sketch19_height2")
pocket18 = body.newObject("PartDesign::Pocket", "Pocket017")
pocket18.Profile = sketch19
pocket18.Type = "UpToFirst"

# Sketch on XY plane
sketch20 = body.newObject("Sketcher::SketchObject", "Sketch019")
sketch20.AttachmentSupport = (doc.getObject("XY_Plane"), [""])
sketch20.MapMode = "FlatFace"
sketch20.AttachmentOffset = App.Placement(V(0, 0, 3), App.Rotation())
sketch20.addGeometry([
    Part.LineSegment(V(70, -32, 0), V(47, -32, 0)),  # 0
    Part.LineSegment(V(47, -32, 0), V(47, -45, 0)),  # 1
    Part.LineSegment(V(47, -45, 0), V(70, -45, 0)),  # 2
    Part.LineSegment(V(70, -45, 0), V(70, -41.5, 0)),  # 3
    Part.LineSegment(V(70, -41.5, 0), V(71, -41.5, 0)),  # 4
    Part.LineSegment(V(71, -41.5, 0), V(71, -35.5, 0)),  # 5
    Part.LineSegment(V(71, -35.5, 0), V(70, -35.5, 0)),  # 6
    Part.LineSegment(V(70, -35.5, 0), V(70, -32, 0)),  # 7
], False)
sketch20.addConstraint([
    Sketcher.Constraint("Coincident", 0, 2, 1, 1),
    Sketcher.Constraint("Coincident", 1, 2, 2, 1),
    Sketcher.Constraint("Coincident", 2, 2, 3, 1),
    Sketcher.Constraint("Coincident", 3, 2, 4, 1),
    Sketcher.Constraint("Coincident", 4, 2, 5, 1),
    Sketcher.Constraint("Coincident", 5, 2, 6, 1),
    Sketcher.Constraint("Coincident", 6, 2, 7, 1),
    Sketcher.Constraint("Coincident", 7, 2, 0, 1),
    Sketcher.Constraint("Horizontal", 0),
    Sketcher.Constraint("Vertical", 1),
    Sketcher.Constraint("Horizontal", 2),
    Sketcher.Constraint("Vertical", 3),
    Sketcher.Constraint("Horizontal", 4),
    Sketcher.Constraint("Vertical", 5),
    Sketcher.Constraint("Horizontal", 6),
    Sketcher.Constraint("Vertical", 7),
    Sketcher.Constraint("Vertical", 3, 2, 6, 2),
    Sketcher.Constraint("Equal", 3, 7),
    Sketcher.Constraint("DistanceX", 0, 2, 0, 1, Q("23 mm")),
    Sketcher.Constraint("DistanceX", 4, 1, 4, 2, Q("1 mm")),
    Sketcher.Constraint("DistanceY", 1, 2, 1, 1, Q("13 mm")),
    Sketcher.Constraint("DistanceY", 5, 1, 5, 2, Q("6 mm")),
    Sketcher.Constraint("DistanceX", -1, 1, 0, 2, Q("47 mm")),
    Sketcher.Constraint("DistanceY", 0, 2, -1, 1, Q("32 mm")),
])
sketch20.setExpression("Constraints[18]", "Params.sketch20_width")
sketch20.setExpression("Constraints[19]", "Params.sketch20_width2")
sketch20.setExpression("Constraints[20]", "Params.sketch20_height")
sketch20.setExpression("Constraints[21]", "Params.sketch20_height2")
pocket19 = body.newObject("PartDesign::Pocket", "Pocket018")
pocket19.Profile = sketch20
pocket19.Type = "UpToFirst"

# Sketch on XY plane
sketch21 = body.newObject("Sketcher::SketchObject", "Sketch020")
sketch21.AttachmentSupport = (doc.getObject("XY_Plane"), [""])
sketch21.MapMode = "FlatFace"
sketch21.AttachmentOffset = App.Placement(V(0, 0, 3), App.Rotation())
sketch21.addGeometry([
    Part.LineSegment(V(70, 45, 0), V(47, 45, 0)),  # 0
    Part.LineSegment(V(47, 45, 0), V(47, 32, 0)),  # 1
    Part.LineSegment(V(47, 32, 0), V(70, 32, 0)),  # 2
    Part.LineSegment(V(70, 32, 0), V(70, 35.5, 0)),  # 3
    Part.LineSegment(V(70, 35.5, 0), V(71, 35.5, 0)),  # 4
    Part.LineSegment(V(71, 35.5, 0), V(71, 41.5, 0)),  # 5
    Part.LineSegment(V(71, 41.5, 0), V(70, 41.5, 0)),  # 6
    Part.LineSegment(V(70, 41.5, 0), V(70, 45, 0)),  # 7
], False)
sketch21.addConstraint([
    Sketcher.Constraint("Coincident", 0, 2, 1, 1),
    Sketcher.Constraint("Coincident", 1, 2, 2, 1),
    Sketcher.Constraint("Coincident", 2, 2, 3, 1),
    Sketcher.Constraint("Coincident", 3, 2, 4, 1),
    Sketcher.Constraint("Coincident", 4, 2, 5, 1),
    Sketcher.Constraint("Coincident", 5, 2, 6, 1),
    Sketcher.Constraint("Coincident", 6, 2, 7, 1),
    Sketcher.Constraint("Coincident", 7, 2, 0, 1),
    Sketcher.Constraint("Horizontal", 0),
    Sketcher.Constraint("Vertical", 1),
    Sketcher.Constraint("Horizontal", 2),
    Sketcher.Constraint("Vertical", 3),
    Sketcher.Constraint("Horizontal", 4),
    Sketcher.Constraint("Vertical", 5),
    Sketcher.Constraint("Horizontal", 6),
    Sketcher.Constraint("Vertical", 7),
    Sketcher.Constraint("Vertical", 3, 2, 6, 2),
    Sketcher.Constraint("Equal", 3, 7),
    Sketcher.Constraint("DistanceX", 0, 2, 0, 1, Q("23 mm")),
    Sketcher.Constraint("DistanceX", 4, 1, 4, 2, Q("1 mm")),
    Sketcher.Constraint("DistanceY", 1, 2, 1, 1, Q("13 mm")),
    Sketcher.Constraint("DistanceY", 5, 1, 5, 2, Q("6 mm")),
    Sketcher.Constraint("DistanceX", -1, 1, 0, 2, Q("47 mm")),
    Sketcher.Constraint("DistanceY", -1, 1, 0, 2, Q("45 mm")),
])
sketch21.setExpression("Constraints[18]", "Params.sketch21_width")
sketch21.setExpression("Constraints[19]", "Params.sketch21_width2")
sketch21.setExpression("Constraints[20]", "Params.sketch21_height")
sketch21.setExpression("Constraints[21]", "Params.sketch21_height2")
pocket20 = body.newObject("PartDesign::Pocket", "Pocket019")
pocket20.Profile = sketch21
pocket20.Type = "UpToFirst"

# Sketch on XY plane
sketch22 = body.newObject("Sketcher::SketchObject", "Sketch021")
sketch22.AttachmentSupport = (doc.getObject("XY_Plane"), [""])
sketch22.MapMode = "FlatFace"
sketch22.AttachmentOffset = App.Placement(V(0, 0, 3), App.Rotation())
sketch22.addGeometry(Part.Circle(V(-78.5, 19.5, 0), V(0, 0, 1), 0.5), False)
sketch22.addConstraint([
    Sketcher.Constraint("Diameter", 0, Q("1 mm")),
    Sketcher.Constraint("DistanceX", 0, 3, -1, 1, Q("78.5 mm")),
    Sketcher.Constraint("DistanceY", -1, 1, 0, 3, Q("19.5 mm")),
])
sketch22.setExpression("Constraints[0]", "Params.sketch22_diameter")
pocket21 = body.newObject("PartDesign::Pocket", "Pocket020")
pocket21.Profile = sketch22
pocket21.Type = "UpToFirst"

# Sketch on XY plane
sketch23 = body.newObject("Sketcher::SketchObject", "Sketch022")
sketch23.AttachmentSupport = (doc.getObject("XY_Plane"), [""])
sketch23.MapMode = "FlatFace"
sketch23.AttachmentOffset = App.Placement(V(0, 0, 3), App.Rotation())
sketch23.addGeometry(Part.Circle(V(-78.5, -8.5, 0), V(0, 0, 1), 0.5), False)
sketch23.addConstraint([
    Sketcher.Constraint("Diameter", 0, Q("1 mm")),
    Sketcher.Constraint("DistanceX", 0, 3, -1, 1, Q("78.5 mm")),
    Sketcher.Constraint("DistanceY", 0, 3, -1, 1, Q("8.5 mm")),
])
sketch23.setExpression("Constraints[0]", "Params.sketch23_diameter")
pocket22 = body.newObject("PartDesign::Pocket", "Pocket021")
pocket22.Profile = sketch23
pocket22.Type = "UpToFirst"

# Sketch on XY plane
sketch24 = body.newObject("Sketcher::SketchObject", "Sketch023")
sketch24.AttachmentSupport = (doc.getObject("XY_Plane"), [""])
sketch24.MapMode = "FlatFace"
sketch24.AttachmentOffset = App.Placement(V(0, 0, 3), App.Rotation())
sketch24.addGeometry([
    Part.LineSegment(V(-72, 17, 0), V(-85, 17, 0)),  # 0
    Part.LineSegment(V(-85, 17, 0), V(-85, -6, 0)),  # 1
    Part.LineSegment(V(-85, -6, 0), V(-81.5, -6, 0)),  # 2
    Part.LineSegment(V(-81.5, -6, 0), V(-81.5, -7, 0)),  # 3
    Part.LineSegment(V(-81.5, -7, 0), V(-75.5, -7, 0)),  # 4
    Part.LineSegment(V(-75.5, -7, 0), V(-75.5, -6, 0)),  # 5
    Part.LineSegment(V(-75.5, -6, 0), V(-72, -6, 0)),  # 6
    Part.LineSegment(V(-72, -6, 0), V(-72, 17, 0)),  # 7
], False)
sketch24.addConstraint([
    Sketcher.Constraint("Coincident", 0, 2, 1, 1),
    Sketcher.Constraint("Coincident", 1, 2, 2, 1),
    Sketcher.Constraint("Coincident", 2, 2, 3, 1),
    Sketcher.Constraint("Coincident", 3, 2, 4, 1),
    Sketcher.Constraint("Coincident", 4, 2, 5, 1),
    Sketcher.Constraint("Coincident", 5, 2, 6, 1),
    Sketcher.Constraint("Coincident", 6, 2, 7, 1),
    Sketcher.Constraint("Coincident", 7, 2, 0, 1),
    Sketcher.Constraint("Horizontal", 0),
    Sketcher.Constraint("Vertical", 1),
    Sketcher.Constraint("Horizontal", 2),
    Sketcher.Constraint("Vertical", 3),
    Sketcher.Constraint("Horizontal", 4),
    Sketcher.Constraint("Vertical", 5),
    Sketcher.Constraint("Horizontal", 6),
    Sketcher.Constraint("Vertical", 7),
    Sketcher.Constraint("Horizontal", 2, 2, 5, 2),
    Sketcher.Constraint("Equal", 2, 6),
    Sketcher.Constraint("DistanceX", 0, 2, 0, 1, Q("13 mm")),
    Sketcher.Constraint("DistanceX", 4, 1, 4, 2, Q("6 mm")),
    Sketcher.Constraint("DistanceY", 1, 2, 1, 1, Q("23 mm")),
    Sketcher.Constraint("DistanceY", 3, 2, 3, 1, Q("1 mm")),
    Sketcher.Constraint("DistanceX", 0, 2, -1, 1, Q("85 mm")),
    Sketcher.Constraint("DistanceY", -1, 1, 0, 2, Q("17 mm")),
])
sketch24.setExpression("Constraints[18]", "Params.sketch24_width")
sketch24.setExpression("Constraints[19]", "Params.sketch24_width2")
sketch24.setExpression("Constraints[20]", "Params.sketch24_height")
sketch24.setExpression("Constraints[21]", "Params.sketch24_height2")
pocket23 = body.newObject("PartDesign::Pocket", "Pocket022")
pocket23.Profile = sketch24
pocket23.Type = "UpToFirst"

# Sketch on XY plane
sketch25 = body.newObject("Sketcher::SketchObject", "Sketch024")
sketch25.AttachmentSupport = (doc.getObject("XY_Plane"), [""])
sketch25.MapMode = "FlatFace"
sketch25.addGeometry(Part.Circle(V(-30, 38.5, 0), V(0, 0, 1), 1), False)
sketch25.addConstraint([
    Sketcher.Constraint("Diameter", 0, Q("2 mm")),
    Sketcher.Constraint("DistanceX", 0, 3, -1, 1, Q("30 mm")),
    Sketcher.Constraint("DistanceY", -1, 1, 0, 3, Q("38.5 mm")),
])
sketch25.setExpression("Constraints[0]", "Params.sketch25_diameter")
pocket24 = body.newObject("PartDesign::Pocket", "Pocket023")
pocket24.Profile = sketch25
pocket24.Type = "UpToFirst"
pocket24.Reversed = True

# Sketch on XY plane
sketch26 = body.newObject("Sketcher::SketchObject", "Sketch025")
sketch26.AttachmentSupport = (doc.getObject("XY_Plane"), [""])
sketch26.MapMode = "FlatFace"
sketch26.addGeometry(Part.Circle(V(30, 38.5, 0), V(0, 0, 1), 1), False)
sketch26.addConstraint([
    Sketcher.Constraint("Diameter", 0, Q("2 mm")),
    Sketcher.Constraint("DistanceX", -1, 1, 0, 3, Q("30 mm")),
    Sketcher.Constraint("DistanceY", -1, 1, 0, 3, Q("38.5 mm")),
])
sketch26.setExpression("Constraints[0]", "Params.sketch26_diameter")
pocket25 = body.newObject("PartDesign::Pocket", "Pocket024")
pocket25.Profile = sketch26
pocket25.Type = "UpToFirst"
pocket25.Reversed = True

# Sketch on XY plane
sketch27 = body.newObject("Sketcher::SketchObject", "Sketch026")
sketch27.AttachmentSupport = (doc.getObject("XY_Plane"), [""])
sketch27.MapMode = "FlatFace"
sketch27.addGeometry(Part.Circle(V(-30, -38.5, 0), V(0, 0, 1), 1), False)
sketch27.addConstraint([
    Sketcher.Constraint("Diameter", 0, Q("2 mm")),
    Sketcher.Constraint("DistanceX", 0, 3, -1, 1, Q("30 mm")),
    Sketcher.Constraint("DistanceY", 0, 3, -1, 1, Q("38.5 mm")),
])
sketch27.setExpression("Constraints[0]", "Params.sketch27_diameter")
pocket26 = body.newObject("PartDesign::Pocket", "Pocket025")
pocket26.Profile = sketch27
pocket26.Type = "UpToFirst"
pocket26.Reversed = True

# Sketch on XY plane
sketch28 = body.newObject("Sketcher::SketchObject", "Sketch027")
sketch28.AttachmentSupport = (doc.getObject("XY_Plane"), [""])
sketch28.MapMode = "FlatFace"
sketch28.addGeometry(Part.Circle(V(30, -38.5, 0), V(0, 0, 1), 1), False)
sketch28.addConstraint([
    Sketcher.Constraint("Diameter", 0, Q("2 mm")),
    Sketcher.Constraint("DistanceX", -1, 1, 0, 3, Q("30 mm")),
    Sketcher.Constraint("DistanceY", 0, 3, -1, 1, Q("38.5 mm")),
])
sketch28.setExpression("Constraints[0]", "Params.sketch28_diameter")
pocket27 = body.newObject("PartDesign::Pocket", "Pocket026")
pocket27.Profile = sketch28
pocket27.Type = "UpToFirst"
pocket27.Reversed = True

doc.recompute()
